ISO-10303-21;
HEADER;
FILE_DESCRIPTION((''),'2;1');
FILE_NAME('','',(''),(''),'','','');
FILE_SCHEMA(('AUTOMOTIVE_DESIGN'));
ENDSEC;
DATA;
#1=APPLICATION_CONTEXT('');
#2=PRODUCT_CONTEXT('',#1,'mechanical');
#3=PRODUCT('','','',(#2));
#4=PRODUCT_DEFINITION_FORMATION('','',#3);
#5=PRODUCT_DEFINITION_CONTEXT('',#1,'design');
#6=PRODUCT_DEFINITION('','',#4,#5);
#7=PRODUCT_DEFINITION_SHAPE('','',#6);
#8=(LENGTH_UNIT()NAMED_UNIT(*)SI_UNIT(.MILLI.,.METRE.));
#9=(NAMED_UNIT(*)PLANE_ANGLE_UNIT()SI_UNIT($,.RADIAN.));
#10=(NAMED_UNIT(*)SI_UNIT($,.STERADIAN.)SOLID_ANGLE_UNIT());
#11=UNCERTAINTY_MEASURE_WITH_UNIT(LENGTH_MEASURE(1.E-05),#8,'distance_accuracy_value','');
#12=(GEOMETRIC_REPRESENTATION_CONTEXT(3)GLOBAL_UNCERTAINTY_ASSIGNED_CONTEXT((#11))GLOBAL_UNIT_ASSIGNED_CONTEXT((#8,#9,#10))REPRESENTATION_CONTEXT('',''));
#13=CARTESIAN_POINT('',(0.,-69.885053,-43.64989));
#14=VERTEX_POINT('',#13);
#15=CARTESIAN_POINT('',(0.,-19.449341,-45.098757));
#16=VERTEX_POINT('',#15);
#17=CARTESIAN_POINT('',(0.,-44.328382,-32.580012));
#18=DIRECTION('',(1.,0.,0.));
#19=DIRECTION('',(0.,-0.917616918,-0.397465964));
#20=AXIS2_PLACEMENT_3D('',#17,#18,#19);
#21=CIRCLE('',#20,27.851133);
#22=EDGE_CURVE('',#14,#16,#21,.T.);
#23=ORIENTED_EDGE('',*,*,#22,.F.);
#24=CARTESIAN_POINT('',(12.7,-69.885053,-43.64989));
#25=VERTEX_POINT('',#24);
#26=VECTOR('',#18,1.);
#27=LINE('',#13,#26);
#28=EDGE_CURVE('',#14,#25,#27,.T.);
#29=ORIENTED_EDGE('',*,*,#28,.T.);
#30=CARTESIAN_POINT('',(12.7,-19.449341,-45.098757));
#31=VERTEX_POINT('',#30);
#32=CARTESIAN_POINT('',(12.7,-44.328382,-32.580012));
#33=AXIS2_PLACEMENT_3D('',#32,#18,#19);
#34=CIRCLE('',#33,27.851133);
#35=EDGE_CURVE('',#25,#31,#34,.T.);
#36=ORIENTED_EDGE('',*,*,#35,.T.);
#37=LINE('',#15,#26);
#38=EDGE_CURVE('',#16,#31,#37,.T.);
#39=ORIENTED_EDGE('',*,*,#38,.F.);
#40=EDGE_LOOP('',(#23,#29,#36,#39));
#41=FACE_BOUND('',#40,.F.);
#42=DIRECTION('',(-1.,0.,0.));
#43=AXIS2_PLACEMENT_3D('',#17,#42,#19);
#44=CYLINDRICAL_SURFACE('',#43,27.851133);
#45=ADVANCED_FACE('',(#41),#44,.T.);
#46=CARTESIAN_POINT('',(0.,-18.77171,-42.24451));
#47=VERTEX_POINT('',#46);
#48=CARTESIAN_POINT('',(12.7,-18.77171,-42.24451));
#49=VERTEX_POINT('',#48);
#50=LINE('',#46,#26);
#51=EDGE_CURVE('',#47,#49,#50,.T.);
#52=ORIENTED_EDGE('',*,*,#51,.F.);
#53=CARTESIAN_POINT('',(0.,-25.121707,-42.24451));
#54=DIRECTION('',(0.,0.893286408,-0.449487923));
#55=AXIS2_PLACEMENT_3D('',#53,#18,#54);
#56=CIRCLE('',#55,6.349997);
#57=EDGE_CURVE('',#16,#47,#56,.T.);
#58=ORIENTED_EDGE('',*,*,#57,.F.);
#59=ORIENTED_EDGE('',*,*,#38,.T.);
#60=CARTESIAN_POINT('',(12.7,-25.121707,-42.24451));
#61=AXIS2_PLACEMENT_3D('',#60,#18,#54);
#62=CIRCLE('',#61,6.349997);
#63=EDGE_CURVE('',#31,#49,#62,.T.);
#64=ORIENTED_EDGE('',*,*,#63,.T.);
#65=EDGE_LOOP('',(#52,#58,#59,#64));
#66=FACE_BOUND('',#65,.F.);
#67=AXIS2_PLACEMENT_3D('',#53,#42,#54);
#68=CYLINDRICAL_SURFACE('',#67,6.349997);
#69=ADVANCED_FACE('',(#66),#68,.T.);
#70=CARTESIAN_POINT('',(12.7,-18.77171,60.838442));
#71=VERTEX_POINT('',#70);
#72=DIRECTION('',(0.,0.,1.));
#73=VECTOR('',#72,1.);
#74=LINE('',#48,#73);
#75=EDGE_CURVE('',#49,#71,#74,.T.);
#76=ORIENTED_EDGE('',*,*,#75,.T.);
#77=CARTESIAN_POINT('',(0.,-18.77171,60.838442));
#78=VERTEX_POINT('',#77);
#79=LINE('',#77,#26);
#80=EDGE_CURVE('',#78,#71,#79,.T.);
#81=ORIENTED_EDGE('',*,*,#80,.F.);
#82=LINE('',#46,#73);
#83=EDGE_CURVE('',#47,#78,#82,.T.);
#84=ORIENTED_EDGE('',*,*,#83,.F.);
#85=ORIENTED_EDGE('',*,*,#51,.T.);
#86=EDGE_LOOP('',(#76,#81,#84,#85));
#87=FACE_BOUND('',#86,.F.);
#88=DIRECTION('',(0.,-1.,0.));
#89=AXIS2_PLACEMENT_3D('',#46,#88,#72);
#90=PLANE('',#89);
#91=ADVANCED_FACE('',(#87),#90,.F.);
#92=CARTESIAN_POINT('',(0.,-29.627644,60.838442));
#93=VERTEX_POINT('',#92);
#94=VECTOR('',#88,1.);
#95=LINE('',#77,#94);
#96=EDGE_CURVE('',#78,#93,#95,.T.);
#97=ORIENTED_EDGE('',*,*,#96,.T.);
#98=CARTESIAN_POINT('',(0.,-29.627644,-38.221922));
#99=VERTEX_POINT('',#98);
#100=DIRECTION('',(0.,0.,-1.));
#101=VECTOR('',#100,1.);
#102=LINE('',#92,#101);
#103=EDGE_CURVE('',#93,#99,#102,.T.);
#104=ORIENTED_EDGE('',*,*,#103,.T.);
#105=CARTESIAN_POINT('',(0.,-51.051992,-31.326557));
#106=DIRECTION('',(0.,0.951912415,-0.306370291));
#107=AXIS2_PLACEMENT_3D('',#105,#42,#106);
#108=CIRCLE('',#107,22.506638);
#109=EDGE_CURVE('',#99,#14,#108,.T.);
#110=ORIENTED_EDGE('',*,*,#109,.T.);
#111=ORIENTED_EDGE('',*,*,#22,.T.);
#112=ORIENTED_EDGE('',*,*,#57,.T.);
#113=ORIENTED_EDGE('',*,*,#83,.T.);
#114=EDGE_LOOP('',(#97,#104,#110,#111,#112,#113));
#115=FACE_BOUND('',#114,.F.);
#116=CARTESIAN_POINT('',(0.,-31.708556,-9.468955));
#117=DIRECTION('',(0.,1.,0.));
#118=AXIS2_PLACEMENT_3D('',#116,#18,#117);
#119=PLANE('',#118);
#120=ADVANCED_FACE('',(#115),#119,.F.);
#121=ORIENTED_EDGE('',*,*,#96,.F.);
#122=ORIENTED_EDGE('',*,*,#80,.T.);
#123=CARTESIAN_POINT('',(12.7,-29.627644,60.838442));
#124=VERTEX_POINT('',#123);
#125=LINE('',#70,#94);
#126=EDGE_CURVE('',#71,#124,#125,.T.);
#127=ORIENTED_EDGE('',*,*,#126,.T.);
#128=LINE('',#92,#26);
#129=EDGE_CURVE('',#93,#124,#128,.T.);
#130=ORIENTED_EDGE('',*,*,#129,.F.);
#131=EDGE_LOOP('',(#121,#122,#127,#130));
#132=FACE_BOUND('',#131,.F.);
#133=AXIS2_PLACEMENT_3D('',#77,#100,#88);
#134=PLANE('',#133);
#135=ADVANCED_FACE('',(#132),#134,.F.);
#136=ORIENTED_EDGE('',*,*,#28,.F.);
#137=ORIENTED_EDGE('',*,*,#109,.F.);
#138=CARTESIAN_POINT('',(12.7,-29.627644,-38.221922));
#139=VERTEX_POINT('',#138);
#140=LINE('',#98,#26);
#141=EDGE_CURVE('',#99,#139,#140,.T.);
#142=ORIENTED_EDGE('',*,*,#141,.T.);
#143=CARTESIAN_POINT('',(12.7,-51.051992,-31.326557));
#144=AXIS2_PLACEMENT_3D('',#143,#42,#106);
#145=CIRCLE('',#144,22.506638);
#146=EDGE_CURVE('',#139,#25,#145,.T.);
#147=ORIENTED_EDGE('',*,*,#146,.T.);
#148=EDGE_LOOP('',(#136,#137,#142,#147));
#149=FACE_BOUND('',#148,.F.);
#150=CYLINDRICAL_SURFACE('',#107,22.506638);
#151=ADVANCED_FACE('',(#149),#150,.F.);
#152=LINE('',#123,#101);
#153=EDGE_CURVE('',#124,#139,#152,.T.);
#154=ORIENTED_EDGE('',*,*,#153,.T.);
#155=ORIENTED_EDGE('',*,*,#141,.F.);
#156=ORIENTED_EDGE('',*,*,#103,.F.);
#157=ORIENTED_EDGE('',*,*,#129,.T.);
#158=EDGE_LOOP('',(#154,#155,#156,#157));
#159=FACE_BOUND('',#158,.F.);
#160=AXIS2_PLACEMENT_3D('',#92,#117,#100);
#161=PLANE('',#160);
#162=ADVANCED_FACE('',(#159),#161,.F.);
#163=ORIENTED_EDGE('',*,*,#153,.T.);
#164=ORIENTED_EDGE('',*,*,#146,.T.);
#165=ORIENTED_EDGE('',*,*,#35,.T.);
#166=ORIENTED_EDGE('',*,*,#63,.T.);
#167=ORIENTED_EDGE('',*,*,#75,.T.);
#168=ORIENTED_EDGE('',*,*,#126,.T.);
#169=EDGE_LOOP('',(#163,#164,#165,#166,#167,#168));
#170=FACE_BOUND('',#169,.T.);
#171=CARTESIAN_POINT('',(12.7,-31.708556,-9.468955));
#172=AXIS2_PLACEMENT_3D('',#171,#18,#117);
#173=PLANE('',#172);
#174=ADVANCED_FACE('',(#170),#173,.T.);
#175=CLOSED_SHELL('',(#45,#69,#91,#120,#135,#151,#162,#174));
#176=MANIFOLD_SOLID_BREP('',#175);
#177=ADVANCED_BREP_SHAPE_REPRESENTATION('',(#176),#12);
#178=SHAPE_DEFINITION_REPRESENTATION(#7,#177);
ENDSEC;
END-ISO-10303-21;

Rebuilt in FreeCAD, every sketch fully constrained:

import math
import FreeCAD as App
import Part
import Sketcher
from FreeCAD import Vector
Q = App.Units.Quantity

doc = App.newDocument("Part")
body = doc.addObject("PartDesign::Body", "Body")

sketch1 = doc.addObject("Sketcher::SketchObject", "Sketch")
body.addObject(sketch1)
sketch1.AttachmentSupport = (doc.YZ_Plane, [""])
sketch1.MapMode = "FlatFace"
sketch1.addGeometry([
    Part.LineSegment(Vector(-18.77171, -42.24451, 0), Vector(-18.77171, 60.838442, 0)),
    Part.LineSegment(Vector(-18.77171, 60.838442, 0), Vector(-29.627644, 60.838442, 0)),
    Part.LineSegment(Vector(-29.627644, 60.838442, 0), Vector(-29.627644, -38.221922, 0)),
    Part.ArcOfCircle(Part.Circle(Vector(-51.051992, -31.326557, 0), Vector(0, 0, 1), 22.506638), math.radians(-146.801442), math.radians(-17.840623)),
    Part.ArcOfCircle(Part.Circle(Vector(-44.328382, -32.580012, 0), Vector(0, 0, 1), 27.851133), math.radians(-156.580141), math.radians(-26.710826)),
    Part.ArcOfCircle(Part.Circle(Vector(-25.121707, -42.24451, 0), Vector(0, 0, 1), 6.349997), math.radians(-26.710834), math.radians(0)),
], False)
sketch1.addConstraint([
    Sketcher.Constraint("Coincident", 0, 2, 1, 1),
    Sketcher.Constraint("Coincident", 1, 2, 2, 1),
    Sketcher.Constraint("Coincident", 2, 2, 3, 2),
    Sketcher.Constraint("Coincident", 3, 1, 4, 1),
    Sketcher.Constraint("Tangent", 4, 2, 5, 1),
    Sketcher.Constraint("Tangent", 5, 2, 0, 1),
    Sketcher.Constraint("Vertical", 0),
    Sketcher.Constraint("Horizontal", 1),
    Sketcher.Constraint("Vertical", 2),
    Sketcher.Constraint("Radius", 5, Q("0.2499999 in")),
    Sketcher.Constraint("DistanceY", 2, 2, -1, 1, Q("1.5048001 in")),
    Sketcher.Constraint("Radius", 3, 22.506638),
    Sketcher.Constraint("Radius", 4, 27.851133),
    Sketcher.Constraint("DistanceY", 3, 3, 0, 2, 92.164999),
    Sketcher.Constraint("DistanceY", 4, 2, 3, 3, 13.7722),
    Sketcher.Constraint("DistanceX", 1, 2, 1, 1, 10.855934),
    Sketcher.Constraint("DistanceY", 0, 1, 0, 2, 103.082952),
    Sketcher.Constraint("DistanceY", 2, 2, 2, 1, 99.060364),
    Sketcher.Constraint("DistanceX", 3, 3, -1, 1, 51.051992),
])
pad1 = doc.addObject("PartDesign::Pad", "Pad")
body.addObject(pad1)
pad1.Profile = sketch1
pad1.Length = Q("0.5 in")

doc.recompute()
